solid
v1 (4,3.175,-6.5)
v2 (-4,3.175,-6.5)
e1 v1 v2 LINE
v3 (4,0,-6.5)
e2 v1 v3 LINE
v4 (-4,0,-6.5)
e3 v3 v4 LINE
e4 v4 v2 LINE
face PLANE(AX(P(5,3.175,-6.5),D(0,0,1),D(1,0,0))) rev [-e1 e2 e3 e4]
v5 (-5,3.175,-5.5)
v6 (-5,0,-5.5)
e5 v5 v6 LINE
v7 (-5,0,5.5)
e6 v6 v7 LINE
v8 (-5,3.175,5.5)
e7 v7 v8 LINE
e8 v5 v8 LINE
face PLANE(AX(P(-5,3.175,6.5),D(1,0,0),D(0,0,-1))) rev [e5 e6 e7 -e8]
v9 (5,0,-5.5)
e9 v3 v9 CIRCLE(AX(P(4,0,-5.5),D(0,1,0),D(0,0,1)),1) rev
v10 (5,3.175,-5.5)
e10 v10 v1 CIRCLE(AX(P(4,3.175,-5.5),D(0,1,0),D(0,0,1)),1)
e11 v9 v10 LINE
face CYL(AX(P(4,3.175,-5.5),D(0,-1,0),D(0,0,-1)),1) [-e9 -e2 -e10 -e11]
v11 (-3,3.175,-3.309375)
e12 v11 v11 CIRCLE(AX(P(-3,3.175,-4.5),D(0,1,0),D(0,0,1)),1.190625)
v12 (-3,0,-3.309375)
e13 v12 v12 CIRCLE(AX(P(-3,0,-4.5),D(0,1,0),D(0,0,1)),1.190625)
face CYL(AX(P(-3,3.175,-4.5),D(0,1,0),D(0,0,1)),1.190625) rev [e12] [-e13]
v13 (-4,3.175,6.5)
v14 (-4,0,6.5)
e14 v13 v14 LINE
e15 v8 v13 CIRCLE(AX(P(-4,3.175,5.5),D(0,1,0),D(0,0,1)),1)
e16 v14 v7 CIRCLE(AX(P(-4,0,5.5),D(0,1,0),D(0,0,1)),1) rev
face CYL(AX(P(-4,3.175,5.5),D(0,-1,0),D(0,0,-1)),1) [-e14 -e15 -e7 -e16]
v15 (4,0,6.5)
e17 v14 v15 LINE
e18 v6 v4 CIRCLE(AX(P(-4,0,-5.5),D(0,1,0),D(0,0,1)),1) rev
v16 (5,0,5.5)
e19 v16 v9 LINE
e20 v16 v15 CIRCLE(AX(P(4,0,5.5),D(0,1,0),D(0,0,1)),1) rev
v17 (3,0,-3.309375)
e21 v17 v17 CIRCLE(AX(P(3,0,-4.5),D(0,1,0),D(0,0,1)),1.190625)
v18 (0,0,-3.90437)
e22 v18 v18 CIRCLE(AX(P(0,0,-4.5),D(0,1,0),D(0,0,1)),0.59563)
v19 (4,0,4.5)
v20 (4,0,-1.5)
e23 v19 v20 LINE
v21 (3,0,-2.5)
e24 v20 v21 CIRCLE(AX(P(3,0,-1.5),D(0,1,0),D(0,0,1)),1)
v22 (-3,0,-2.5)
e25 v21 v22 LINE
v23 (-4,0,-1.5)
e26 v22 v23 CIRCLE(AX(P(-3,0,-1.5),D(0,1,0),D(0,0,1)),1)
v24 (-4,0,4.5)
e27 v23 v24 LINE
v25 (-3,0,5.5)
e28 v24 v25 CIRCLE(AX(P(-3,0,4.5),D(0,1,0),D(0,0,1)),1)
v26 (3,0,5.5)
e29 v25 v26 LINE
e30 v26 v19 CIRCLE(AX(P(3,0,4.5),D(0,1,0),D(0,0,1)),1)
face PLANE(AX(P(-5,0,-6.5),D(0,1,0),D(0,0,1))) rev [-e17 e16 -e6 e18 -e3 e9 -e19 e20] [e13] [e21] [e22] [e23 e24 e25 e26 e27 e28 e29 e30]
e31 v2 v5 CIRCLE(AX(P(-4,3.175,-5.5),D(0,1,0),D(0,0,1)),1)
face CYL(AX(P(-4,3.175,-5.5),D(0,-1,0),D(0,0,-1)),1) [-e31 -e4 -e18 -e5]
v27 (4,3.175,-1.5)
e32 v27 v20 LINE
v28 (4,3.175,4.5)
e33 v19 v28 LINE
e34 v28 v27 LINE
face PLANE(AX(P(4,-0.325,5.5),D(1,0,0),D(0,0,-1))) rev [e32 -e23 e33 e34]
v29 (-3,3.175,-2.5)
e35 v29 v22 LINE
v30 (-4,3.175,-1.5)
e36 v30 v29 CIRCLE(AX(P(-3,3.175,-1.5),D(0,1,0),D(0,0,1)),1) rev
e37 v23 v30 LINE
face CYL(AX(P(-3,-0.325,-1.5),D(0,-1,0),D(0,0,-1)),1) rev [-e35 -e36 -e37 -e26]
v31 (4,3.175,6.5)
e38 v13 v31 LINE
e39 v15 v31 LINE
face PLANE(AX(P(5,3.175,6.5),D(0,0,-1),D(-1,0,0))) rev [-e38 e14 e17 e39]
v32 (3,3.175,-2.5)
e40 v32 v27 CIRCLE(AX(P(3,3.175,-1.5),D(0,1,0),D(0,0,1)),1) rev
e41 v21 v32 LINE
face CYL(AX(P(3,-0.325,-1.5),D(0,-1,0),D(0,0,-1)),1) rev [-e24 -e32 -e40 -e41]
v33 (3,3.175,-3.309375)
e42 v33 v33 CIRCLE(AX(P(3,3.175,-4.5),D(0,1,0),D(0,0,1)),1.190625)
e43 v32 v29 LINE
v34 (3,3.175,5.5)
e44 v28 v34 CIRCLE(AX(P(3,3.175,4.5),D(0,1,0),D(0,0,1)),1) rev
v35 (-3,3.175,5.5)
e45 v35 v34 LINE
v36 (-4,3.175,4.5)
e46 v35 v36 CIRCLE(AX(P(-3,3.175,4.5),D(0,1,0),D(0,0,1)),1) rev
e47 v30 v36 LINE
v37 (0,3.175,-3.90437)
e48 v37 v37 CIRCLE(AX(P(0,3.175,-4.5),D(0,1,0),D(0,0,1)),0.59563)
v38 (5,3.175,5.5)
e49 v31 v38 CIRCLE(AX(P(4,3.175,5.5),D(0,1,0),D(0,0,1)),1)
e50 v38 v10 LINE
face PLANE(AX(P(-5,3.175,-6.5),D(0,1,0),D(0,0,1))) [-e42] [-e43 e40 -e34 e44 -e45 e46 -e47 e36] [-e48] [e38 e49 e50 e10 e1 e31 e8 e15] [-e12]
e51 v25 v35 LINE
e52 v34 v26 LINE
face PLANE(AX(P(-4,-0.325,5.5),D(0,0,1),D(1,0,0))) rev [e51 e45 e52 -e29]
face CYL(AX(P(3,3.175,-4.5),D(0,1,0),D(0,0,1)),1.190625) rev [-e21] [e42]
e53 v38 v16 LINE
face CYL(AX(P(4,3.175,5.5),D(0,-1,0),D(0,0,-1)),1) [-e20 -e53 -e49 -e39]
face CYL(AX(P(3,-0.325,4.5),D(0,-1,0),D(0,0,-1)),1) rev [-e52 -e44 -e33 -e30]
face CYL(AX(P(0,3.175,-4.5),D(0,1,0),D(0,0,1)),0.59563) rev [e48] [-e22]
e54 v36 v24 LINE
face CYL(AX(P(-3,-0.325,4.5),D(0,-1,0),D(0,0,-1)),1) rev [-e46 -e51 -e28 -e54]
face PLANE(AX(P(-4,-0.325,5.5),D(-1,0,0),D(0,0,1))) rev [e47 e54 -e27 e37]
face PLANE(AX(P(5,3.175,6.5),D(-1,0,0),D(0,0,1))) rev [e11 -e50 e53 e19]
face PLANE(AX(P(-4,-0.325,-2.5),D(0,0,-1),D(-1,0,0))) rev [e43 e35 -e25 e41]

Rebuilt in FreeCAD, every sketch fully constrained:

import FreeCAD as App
import Part
import Sketcher

V = App.Vector
Q = App.Units.Quantity


def edges_at(feature, points):
    """Names of the edges that pass closest to the given points."""
    edges = feature.Shape.Edges
    near = lambda p: min(range(len(edges)), key=lambda i: edges[i].distToShape(Part.Vertex(*p))[0])
    return sorted({f"Edge{near(p) + 1}" for p in points})

doc = App.newDocument("Part")
body = doc.addObject("PartDesign::Body", "Body")

sketch1 = body.newObject("Sketcher::SketchObject", "Sketch")
sketch1.AttachmentSupport = (doc.getObject("XZ_Plane"), [""])
sketch1.MapMode = "FlatFace"
sketch1.addGeometry([
    Part.LineSegment(V(-5, -6, 0), V(-5, 6, 0)),
    Part.LineSegment(V(-5, 6, 0), V(5, 6, 0)),
    Part.LineSegment(V(5, 6, 0), V(5, -6, 0)),
    Part.LineSegment(V(5, -6, 0), V(-5, -6, 0)),
], False)
sketch1.addConstraint([
    Sketcher.Constraint("Coincident", 0, 2, 1, 1),
    Sketcher.Constraint("Coincident", 1, 2, 2, 1),
    Sketcher.Constraint("Coincident", 2, 2, 3, 1),
    Sketcher.Constraint("Coincident", 3, 2, 0, 1),
    Sketcher.Constraint("Vertical", 0),
    Sketcher.Constraint("Horizontal", 1),
    Sketcher.Constraint("Vertical", 2),
    Sketcher.Constraint("Horizontal", 3),
    Sketcher.Constraint("Symmetric", 0, 2, 2, 2, -1, 1),
    Sketcher.Constraint("DistanceX", 1, 1, 1, 2, Q("10 mm")),
    Sketcher.Constraint("DistanceY", 0, 1, 0, 2, Q("13 mm")),
])
pad1 = body.newObject("PartDesign::Pad", "Pad")
pad1.Profile = sketch1
pad1.Length = 3.175
pad1.Reversed = True

sketch2 = body.newObject("Sketcher::SketchObject", "Sketch001")
sketch2.AttachmentSupport = (doc.getObject("XZ_Plane"), [""])
sketch2.MapMode = "FlatFace"
sketch2.AttachmentOffset = App.Placement(V(0, 0, -3.175), App.Rotation())
sketch2.addGeometry([
    Part.LineSegment(V(-4, -2, 0), V(-4, 6, 0)),
    Part.LineSegment(V(-4, 6, 0), V(4, 6, 0)),
    Part.LineSegment(V(4, 6, 0), V(4, -2, 0)),
    Part.LineSegment(V(4, -2, 0), V(-4, -2, 0)),
], False)
sketch2.addConstraint([
    Sketcher.Constraint("Coincident", 0, 2, 1, 1),
    Sketcher.Constraint("Coincident", 1, 2, 2, 1),
    Sketcher.Constraint("Coincident", 2, 2, 3, 1),
    Sketcher.Constraint("Coincident", 3, 2, 0, 1),
    Sketcher.Constraint("Vertical", 0),
    Sketcher.Constraint("Horizontal", 1),
    Sketcher.Constraint("Vertical", 2),
    Sketcher.Constraint("Horizontal", 3),
    Sketcher.Constraint("Equal", 3, 0),
    Sketcher.Constraint("DistanceX", 1, 1, 1, 2, Q("8 mm")),
    Sketcher.Constraint("DistanceX", 0, 2, -1, 1, Q("4 mm")),
    Sketcher.Constraint("DistanceY", -1, 1, 0, 2, Q("5.5 mm")),
])
pocket1 = body.newObject("PartDesign::Pocket", "Pocket")
pocket1.Profile = sketch2
pocket1.Length = 3.5
pocket1.Reversed = True

sketch3 = body.newObject("Sketcher::SketchObject", "Sketch002")
sketch3.AttachmentSupport = (doc.getObject("XZ_Plane"), [""])
sketch3.MapMode = "FlatFace"
sketch3.AttachmentOffset = App.Placement(V(0, 0, -3.175), App.Rotation())
sketch3.addGeometry(Part.Circle(V(0, -4.5, 0), V(0, 0, 1), 0.6), False)
sketch3.addConstraint([
    Sketcher.Constraint("PointOnObject", 0, 3, -2),
    Sketcher.Constraint("DistanceY", 0, 3, -1, 1, Q("4.5 mm")),
    Sketcher.Constraint("Diameter", 0, Q("1.19126 mm")),
])
doc.recompute()
hole = body.newObject("PartDesign::Hole", "Hole")
hole.Profile = sketch3
hole.ThreadType = "None"
hole.Diameter = 1.19126
hole.DepthType = "Dimension"
hole.Depth = 4
hole.DrillPoint = "Angled"
hole.DrillPointAngle = 118
hole.Reversed = True

sketch4 = body.newObject("Sketcher::SketchObject", "Sketch003")
sketch4.AttachmentSupport = (doc.getObject("XZ_Plane"), [""])
sketch4.MapMode = "FlatFace"
sketch4.AttachmentOffset = App.Placement(V(0, 0, -3.175), App.Rotation())
sketch4.addGeometry([
    Part.Circle(V(-3, -4.5, 0), V(0, 0, 1), 1.2),
    Part.Circle(V(3, -4.5, 0), V(0, 0, 1), 1.2),
], False)
sketch4.addConstraint([
    Sketcher.Constraint("Equal", 0, 1),
    Sketcher.Constraint("Symmetric", 0, 3, 1, 3, -2),
    Sketcher.Constraint("DistanceX", 0, 3, -1, 1, Q("3 mm")),
    Sketcher.Constraint("DistanceY", 0, 3, -1, 1, Q("4.5 mm")),
    Sketcher.Constraint("Diameter", 0, Q("2.38125 mm")),
])
doc.recompute()
hole2 = body.newObject("PartDesign::Hole", "Hole001")
hole2.Profile = sketch4
hole2.ThreadType = "None"
hole2.Diameter = 2.38125
hole2.DepthType = "Dimension"
hole2.Depth = 10
hole2.DrillPoint = "Angled"
hole2.DrillPointAngle = 118
hole2.Reversed = True
doc.recompute()

fillet = body.newObject("PartDesign::Fillet", "Fillet")
fillet.Base = (hole2, edges_at(hole2, [
    (-4, 1.587, 5.5),
    (-4, 1.587, -2.5),
    (4, 1.587, -2.5),
    (4, 1.587, 5.5),
    (-5, 1.587, -6.5),
    (5, 1.587, -6.5),
    (5, 1.587, 6.5),
    (-5, 1.587, 6.5),
]))
fillet.Radius = 1

doc.recompute()
